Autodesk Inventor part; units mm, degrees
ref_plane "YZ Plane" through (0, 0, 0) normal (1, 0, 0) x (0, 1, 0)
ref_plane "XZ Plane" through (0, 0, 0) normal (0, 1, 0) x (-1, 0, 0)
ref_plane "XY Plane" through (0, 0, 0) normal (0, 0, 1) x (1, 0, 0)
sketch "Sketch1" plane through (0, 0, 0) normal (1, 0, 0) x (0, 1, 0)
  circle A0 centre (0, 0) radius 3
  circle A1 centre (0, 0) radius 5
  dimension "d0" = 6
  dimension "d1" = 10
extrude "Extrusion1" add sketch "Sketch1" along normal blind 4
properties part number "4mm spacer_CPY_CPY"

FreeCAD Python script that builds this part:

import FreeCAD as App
import Part
import Sketcher

V = App.Vector

doc = App.newDocument("Part")
body = doc.addObject("PartDesign::Body", "Body")

# Sketch on YZ plane
sketch1 = body.newObject("Sketcher::SketchObject", "Sketch")
sketch1.AttachmentSupport = (doc.getObject("YZ_Plane"), [""])
sketch1.MapMode = "FlatFace"
sketch1.addGeometry(Part.Circle(V(0, 0, 0), V(0, 0, 1), 5), False)
sketch1.addGeometry(Part.Circle(V(0, 0, 0), V(0, 0, 1), 3), False)
sketch1.addConstraint(Sketcher.Constraint("Coincident", 0, 3, -1, 1))
sketch1.addConstraint(Sketcher.Constraint("Coincident", 1, 3, -1, 1))
sketch1.addConstraint(Sketcher.Constraint("Diameter", 0, 10.0))
sketch1.addConstraint(Sketcher.Constraint("Diameter", 1, 6.0))
pad1 = body.newObject("PartDesign::Pad", "Pad")
pad1.Profile = sketch1
pad1.Length = 4

doc.recompute()
